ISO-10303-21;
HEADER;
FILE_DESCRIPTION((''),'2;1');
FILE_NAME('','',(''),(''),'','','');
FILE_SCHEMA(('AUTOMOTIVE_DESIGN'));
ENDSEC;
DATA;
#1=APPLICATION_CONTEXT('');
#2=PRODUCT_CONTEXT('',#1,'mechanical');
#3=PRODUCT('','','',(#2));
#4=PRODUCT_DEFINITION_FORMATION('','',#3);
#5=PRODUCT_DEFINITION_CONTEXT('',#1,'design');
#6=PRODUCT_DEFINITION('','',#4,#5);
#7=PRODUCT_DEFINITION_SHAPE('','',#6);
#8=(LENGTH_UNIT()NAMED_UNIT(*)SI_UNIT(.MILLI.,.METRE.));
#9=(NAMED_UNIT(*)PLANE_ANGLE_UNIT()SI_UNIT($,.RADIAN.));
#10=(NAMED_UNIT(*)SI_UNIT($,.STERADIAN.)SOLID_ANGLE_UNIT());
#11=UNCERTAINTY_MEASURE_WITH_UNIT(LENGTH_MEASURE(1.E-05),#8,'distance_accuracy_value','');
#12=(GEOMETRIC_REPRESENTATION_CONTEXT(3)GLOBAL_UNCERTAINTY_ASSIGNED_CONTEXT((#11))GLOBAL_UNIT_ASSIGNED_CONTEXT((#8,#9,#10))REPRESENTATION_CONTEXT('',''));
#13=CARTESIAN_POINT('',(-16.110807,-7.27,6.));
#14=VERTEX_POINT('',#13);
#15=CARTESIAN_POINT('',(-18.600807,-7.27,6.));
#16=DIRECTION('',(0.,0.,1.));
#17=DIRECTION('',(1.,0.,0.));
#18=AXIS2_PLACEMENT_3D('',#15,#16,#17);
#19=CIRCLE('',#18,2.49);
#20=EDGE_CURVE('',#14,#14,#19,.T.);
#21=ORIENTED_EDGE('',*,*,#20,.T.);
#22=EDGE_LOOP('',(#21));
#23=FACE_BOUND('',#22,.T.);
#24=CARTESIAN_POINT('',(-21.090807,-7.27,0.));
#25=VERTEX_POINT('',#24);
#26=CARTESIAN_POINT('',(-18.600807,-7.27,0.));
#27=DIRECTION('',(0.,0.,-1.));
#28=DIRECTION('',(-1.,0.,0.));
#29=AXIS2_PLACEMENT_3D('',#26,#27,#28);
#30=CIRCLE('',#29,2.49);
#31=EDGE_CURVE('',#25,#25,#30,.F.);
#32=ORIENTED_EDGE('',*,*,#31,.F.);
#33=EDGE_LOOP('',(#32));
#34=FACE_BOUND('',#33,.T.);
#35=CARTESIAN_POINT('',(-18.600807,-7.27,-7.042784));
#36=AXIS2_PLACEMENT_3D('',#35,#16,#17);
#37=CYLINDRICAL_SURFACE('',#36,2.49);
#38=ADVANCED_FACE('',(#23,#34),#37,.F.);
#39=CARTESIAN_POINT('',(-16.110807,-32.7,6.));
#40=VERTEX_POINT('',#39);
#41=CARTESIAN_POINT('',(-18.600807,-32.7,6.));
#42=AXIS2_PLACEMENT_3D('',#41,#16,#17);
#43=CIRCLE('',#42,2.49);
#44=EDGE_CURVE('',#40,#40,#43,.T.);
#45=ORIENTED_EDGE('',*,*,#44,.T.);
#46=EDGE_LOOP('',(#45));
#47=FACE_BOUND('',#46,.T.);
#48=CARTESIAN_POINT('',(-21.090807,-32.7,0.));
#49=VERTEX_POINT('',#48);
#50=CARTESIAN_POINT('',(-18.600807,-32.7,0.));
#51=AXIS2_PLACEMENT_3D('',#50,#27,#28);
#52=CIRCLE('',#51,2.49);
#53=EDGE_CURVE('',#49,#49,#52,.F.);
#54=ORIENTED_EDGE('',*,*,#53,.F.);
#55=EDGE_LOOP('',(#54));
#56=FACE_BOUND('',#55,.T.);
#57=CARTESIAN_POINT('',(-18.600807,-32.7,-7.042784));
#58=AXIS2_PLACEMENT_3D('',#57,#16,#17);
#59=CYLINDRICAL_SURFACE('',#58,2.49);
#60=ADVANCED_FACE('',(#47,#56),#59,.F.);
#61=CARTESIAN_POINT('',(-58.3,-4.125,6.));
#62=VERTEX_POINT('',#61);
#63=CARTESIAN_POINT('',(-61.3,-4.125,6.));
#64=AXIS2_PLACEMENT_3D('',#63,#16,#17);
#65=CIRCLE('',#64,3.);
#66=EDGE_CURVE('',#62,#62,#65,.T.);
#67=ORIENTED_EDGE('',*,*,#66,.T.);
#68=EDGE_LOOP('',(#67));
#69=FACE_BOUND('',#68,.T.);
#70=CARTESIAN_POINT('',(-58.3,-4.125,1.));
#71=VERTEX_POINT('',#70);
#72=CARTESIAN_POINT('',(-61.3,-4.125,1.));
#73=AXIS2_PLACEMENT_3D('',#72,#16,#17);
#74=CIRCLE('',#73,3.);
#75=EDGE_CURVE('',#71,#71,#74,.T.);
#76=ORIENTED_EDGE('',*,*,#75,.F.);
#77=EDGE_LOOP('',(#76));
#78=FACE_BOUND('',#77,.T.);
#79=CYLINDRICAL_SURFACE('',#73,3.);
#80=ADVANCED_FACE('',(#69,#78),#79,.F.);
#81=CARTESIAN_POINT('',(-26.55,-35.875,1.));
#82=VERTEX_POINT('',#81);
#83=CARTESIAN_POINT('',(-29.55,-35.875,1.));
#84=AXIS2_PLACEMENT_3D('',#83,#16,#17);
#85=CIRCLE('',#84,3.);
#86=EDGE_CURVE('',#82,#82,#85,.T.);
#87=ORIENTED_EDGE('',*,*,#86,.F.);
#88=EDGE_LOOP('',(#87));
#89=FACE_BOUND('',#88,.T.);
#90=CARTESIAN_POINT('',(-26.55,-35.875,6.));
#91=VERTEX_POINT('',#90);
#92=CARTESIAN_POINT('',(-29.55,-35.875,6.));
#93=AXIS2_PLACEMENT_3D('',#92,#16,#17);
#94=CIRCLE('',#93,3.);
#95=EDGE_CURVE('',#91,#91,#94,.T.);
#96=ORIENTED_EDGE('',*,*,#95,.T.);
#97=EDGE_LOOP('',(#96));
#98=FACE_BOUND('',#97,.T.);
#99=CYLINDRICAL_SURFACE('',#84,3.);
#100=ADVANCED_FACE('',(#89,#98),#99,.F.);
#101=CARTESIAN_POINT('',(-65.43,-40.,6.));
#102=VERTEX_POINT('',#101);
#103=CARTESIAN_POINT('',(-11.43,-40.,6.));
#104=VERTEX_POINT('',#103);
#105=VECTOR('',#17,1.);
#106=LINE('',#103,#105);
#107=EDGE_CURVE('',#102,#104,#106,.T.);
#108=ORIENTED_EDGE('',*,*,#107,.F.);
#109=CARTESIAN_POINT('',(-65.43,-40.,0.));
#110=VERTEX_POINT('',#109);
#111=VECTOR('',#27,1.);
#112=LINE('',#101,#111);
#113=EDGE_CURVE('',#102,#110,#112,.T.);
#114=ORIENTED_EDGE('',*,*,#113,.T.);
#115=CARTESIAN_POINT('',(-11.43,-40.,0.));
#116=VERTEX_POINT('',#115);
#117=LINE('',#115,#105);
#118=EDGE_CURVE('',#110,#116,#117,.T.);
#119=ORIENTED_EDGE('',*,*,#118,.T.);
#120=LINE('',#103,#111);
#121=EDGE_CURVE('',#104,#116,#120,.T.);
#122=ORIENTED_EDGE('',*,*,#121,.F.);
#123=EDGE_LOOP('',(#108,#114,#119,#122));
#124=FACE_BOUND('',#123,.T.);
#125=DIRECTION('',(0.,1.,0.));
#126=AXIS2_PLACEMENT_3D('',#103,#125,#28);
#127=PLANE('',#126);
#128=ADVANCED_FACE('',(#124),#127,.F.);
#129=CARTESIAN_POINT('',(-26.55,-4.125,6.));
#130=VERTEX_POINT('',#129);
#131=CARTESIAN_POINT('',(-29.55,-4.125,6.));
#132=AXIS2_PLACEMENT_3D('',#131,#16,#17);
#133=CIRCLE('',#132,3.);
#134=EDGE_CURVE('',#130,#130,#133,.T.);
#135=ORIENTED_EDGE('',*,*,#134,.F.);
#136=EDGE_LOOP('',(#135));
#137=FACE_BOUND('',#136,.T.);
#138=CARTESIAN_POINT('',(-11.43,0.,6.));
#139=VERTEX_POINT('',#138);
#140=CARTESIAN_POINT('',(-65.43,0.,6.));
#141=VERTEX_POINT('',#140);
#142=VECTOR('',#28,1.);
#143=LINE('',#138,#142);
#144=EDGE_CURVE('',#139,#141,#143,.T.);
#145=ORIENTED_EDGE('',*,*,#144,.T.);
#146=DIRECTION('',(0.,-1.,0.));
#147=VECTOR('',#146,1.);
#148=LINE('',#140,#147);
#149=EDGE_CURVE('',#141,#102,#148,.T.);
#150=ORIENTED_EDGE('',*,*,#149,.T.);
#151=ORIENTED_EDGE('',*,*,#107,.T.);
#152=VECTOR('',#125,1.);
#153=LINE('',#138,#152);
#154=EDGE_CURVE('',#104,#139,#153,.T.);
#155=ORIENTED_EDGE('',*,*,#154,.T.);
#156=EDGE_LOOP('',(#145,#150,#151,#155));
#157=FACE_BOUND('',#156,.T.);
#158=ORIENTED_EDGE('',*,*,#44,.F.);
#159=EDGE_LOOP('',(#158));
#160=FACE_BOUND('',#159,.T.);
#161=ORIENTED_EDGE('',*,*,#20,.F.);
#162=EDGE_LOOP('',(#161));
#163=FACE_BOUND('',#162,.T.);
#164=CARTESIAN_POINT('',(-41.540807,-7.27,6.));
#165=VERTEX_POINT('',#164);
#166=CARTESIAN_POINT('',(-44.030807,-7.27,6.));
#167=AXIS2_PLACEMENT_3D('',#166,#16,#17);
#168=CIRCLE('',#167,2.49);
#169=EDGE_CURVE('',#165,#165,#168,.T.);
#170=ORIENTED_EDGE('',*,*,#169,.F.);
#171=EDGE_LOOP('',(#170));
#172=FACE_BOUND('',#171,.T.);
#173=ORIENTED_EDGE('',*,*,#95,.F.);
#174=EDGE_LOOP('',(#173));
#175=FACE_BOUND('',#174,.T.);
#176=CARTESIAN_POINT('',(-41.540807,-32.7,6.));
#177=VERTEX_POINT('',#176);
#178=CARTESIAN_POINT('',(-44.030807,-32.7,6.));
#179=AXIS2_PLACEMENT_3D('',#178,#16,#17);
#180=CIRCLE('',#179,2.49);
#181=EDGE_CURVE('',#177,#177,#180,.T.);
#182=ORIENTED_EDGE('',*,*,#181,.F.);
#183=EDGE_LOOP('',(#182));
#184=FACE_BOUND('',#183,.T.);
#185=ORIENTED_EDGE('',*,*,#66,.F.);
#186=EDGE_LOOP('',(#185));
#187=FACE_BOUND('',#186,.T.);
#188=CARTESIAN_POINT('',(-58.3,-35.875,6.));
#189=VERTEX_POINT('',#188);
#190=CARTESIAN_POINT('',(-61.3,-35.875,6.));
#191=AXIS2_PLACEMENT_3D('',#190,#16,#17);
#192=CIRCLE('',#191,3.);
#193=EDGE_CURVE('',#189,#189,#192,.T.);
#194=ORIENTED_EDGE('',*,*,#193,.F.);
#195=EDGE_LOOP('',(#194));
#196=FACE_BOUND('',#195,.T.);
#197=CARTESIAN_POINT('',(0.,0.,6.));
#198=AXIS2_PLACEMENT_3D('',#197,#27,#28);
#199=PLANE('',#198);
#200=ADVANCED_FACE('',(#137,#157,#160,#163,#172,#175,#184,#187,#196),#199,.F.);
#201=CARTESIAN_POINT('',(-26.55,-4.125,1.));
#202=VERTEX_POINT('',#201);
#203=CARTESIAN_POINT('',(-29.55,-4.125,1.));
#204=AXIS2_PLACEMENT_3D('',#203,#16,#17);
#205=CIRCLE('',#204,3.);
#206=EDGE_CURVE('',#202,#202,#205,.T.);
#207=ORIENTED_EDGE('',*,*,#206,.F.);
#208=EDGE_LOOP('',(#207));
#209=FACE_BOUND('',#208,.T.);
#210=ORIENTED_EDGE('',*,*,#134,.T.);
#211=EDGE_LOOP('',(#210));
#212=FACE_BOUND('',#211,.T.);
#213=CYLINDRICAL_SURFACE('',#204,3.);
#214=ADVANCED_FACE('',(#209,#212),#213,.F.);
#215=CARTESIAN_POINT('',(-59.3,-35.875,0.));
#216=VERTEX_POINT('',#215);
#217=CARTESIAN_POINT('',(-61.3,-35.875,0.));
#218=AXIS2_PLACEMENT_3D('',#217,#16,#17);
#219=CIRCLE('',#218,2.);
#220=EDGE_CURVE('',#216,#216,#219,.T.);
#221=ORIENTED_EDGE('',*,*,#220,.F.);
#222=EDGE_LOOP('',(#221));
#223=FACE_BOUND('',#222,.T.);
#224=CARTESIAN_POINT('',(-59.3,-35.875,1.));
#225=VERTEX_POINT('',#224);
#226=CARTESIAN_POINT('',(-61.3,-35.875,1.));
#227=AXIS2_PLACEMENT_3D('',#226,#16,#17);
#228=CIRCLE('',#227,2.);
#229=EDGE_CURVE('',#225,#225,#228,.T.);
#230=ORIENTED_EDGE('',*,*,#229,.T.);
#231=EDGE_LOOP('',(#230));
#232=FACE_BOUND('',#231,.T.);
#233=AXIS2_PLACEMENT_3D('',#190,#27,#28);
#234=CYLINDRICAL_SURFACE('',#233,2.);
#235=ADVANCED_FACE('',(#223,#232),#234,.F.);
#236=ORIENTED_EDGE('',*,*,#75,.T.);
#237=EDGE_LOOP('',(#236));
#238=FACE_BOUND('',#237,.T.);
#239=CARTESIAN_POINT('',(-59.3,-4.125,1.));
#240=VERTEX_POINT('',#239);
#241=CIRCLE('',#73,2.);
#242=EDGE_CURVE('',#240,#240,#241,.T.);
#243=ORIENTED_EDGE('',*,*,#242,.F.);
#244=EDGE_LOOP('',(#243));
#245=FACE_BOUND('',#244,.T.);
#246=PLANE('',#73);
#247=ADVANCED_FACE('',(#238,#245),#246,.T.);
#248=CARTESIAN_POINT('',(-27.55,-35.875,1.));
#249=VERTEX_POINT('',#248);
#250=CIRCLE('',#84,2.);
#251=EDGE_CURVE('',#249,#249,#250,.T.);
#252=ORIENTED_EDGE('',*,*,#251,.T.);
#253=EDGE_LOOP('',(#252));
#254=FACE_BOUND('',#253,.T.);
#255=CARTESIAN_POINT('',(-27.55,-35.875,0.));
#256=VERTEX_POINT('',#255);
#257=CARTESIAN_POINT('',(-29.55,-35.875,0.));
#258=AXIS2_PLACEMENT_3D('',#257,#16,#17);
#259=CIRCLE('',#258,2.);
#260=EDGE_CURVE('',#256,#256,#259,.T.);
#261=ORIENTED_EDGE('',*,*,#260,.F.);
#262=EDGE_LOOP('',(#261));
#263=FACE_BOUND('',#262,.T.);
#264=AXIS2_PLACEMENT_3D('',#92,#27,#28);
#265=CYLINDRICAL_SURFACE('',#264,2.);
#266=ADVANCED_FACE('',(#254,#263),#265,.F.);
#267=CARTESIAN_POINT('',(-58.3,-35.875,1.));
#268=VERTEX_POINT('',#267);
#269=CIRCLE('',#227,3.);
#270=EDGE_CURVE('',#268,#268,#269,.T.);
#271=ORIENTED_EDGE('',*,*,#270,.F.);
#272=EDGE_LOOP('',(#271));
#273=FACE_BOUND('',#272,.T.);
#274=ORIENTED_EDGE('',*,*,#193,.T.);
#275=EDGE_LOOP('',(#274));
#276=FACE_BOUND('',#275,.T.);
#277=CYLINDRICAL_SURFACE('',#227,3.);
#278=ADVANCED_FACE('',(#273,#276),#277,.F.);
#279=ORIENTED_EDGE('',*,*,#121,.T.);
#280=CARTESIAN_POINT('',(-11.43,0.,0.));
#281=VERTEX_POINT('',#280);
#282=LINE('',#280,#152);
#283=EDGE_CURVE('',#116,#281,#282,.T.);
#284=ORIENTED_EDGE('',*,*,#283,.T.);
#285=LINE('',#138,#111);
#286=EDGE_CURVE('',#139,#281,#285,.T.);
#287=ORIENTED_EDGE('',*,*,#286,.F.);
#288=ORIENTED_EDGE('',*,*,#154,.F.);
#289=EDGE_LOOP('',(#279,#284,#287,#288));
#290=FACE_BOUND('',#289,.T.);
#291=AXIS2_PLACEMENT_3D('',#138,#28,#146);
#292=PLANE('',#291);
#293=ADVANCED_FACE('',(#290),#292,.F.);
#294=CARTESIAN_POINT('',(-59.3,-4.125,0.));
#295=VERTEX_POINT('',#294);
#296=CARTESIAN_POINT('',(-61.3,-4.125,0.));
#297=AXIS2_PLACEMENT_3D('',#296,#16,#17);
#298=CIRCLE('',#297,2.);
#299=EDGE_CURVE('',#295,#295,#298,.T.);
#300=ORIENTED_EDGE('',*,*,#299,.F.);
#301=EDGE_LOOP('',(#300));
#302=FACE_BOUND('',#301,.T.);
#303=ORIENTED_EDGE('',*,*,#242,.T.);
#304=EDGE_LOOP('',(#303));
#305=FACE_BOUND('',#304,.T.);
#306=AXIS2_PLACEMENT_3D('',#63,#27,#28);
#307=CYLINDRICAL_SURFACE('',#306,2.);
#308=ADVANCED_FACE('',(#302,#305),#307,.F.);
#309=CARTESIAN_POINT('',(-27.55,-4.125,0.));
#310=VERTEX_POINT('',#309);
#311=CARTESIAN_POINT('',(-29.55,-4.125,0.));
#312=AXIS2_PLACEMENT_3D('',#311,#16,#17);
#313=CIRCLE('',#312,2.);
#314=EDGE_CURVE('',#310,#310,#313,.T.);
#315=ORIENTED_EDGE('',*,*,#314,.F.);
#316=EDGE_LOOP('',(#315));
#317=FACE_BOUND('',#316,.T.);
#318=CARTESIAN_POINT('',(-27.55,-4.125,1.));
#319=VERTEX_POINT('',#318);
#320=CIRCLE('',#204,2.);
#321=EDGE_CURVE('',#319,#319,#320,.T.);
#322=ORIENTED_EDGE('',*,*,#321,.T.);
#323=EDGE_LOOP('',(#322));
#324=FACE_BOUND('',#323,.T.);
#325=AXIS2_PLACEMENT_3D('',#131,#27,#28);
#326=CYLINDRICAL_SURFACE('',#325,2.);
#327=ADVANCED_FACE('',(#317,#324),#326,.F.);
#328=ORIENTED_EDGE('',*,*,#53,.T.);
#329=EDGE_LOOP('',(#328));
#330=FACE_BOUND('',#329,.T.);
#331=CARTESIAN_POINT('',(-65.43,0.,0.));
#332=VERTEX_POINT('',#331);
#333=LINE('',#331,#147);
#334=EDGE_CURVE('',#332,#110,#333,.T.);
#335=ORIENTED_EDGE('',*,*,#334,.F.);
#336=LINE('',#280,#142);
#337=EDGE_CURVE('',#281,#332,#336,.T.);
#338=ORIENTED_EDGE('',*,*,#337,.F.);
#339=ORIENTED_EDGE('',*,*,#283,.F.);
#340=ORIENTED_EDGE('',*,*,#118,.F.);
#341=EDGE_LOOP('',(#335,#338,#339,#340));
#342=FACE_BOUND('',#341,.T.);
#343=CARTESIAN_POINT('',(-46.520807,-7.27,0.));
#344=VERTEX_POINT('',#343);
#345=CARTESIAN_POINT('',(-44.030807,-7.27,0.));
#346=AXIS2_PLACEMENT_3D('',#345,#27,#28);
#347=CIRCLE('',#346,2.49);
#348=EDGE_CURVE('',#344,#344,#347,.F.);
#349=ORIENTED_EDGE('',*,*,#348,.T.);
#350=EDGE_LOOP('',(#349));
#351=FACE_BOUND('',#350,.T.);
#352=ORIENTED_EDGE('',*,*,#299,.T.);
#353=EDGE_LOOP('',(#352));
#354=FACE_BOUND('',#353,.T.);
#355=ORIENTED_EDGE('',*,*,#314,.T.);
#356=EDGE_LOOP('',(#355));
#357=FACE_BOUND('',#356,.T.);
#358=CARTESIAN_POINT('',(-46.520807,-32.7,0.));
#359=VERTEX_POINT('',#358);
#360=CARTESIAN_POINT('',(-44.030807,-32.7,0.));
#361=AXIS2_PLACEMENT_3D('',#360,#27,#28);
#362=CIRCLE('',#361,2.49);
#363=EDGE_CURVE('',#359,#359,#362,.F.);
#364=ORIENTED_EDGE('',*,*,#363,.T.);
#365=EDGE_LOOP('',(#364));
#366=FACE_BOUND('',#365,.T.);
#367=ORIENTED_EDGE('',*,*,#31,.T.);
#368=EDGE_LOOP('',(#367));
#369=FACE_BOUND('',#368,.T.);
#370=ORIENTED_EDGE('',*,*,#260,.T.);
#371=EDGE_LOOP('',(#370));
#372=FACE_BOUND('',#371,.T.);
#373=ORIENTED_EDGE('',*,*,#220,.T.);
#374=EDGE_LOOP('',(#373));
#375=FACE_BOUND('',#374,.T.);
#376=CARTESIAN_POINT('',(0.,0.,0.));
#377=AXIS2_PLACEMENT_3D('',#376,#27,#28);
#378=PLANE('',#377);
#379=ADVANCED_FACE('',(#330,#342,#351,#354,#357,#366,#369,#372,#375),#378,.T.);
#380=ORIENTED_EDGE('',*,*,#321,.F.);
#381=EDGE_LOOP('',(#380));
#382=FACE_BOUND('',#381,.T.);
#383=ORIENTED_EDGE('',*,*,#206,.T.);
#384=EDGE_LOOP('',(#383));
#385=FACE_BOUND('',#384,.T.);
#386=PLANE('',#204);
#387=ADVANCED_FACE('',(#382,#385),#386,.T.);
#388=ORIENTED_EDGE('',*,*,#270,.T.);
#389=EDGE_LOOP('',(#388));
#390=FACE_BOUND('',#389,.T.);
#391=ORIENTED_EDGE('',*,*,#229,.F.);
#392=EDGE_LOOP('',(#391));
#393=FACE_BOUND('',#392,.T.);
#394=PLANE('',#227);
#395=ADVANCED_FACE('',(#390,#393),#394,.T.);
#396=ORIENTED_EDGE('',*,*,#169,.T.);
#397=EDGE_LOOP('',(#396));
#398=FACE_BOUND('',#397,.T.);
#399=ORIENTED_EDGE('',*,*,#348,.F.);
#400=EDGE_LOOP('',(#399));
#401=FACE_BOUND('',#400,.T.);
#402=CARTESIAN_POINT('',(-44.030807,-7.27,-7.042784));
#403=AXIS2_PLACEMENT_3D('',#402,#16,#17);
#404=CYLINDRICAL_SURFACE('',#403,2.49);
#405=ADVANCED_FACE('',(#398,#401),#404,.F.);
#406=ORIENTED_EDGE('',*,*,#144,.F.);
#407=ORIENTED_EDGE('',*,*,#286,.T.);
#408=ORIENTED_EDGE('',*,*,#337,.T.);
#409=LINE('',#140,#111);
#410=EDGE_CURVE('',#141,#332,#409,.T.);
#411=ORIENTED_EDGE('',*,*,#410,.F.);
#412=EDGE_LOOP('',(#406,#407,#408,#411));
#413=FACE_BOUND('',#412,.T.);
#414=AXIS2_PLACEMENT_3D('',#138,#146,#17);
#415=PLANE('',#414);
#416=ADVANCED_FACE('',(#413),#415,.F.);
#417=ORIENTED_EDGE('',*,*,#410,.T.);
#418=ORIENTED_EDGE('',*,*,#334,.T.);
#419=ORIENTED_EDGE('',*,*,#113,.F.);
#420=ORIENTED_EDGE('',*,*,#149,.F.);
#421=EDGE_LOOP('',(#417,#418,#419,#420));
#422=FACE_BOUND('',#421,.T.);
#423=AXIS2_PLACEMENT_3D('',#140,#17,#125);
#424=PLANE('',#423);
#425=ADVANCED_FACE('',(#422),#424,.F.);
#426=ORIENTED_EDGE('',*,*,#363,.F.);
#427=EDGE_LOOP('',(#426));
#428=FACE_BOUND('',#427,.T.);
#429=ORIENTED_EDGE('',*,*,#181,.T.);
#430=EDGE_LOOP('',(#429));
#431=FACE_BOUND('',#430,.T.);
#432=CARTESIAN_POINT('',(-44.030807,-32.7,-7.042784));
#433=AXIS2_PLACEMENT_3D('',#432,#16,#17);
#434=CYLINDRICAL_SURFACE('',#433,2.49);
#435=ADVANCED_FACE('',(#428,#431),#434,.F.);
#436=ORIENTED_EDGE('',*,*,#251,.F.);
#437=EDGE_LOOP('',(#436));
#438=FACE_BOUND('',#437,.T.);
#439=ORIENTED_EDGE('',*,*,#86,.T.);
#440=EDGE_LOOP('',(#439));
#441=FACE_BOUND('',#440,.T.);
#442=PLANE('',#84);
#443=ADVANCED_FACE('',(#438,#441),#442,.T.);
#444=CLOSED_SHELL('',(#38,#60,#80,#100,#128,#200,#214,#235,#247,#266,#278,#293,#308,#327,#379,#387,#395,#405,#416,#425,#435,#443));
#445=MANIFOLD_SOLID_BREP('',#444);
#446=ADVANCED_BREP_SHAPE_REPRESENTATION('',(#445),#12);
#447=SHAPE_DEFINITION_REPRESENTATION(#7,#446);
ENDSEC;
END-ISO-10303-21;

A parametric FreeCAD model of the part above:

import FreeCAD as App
import Part
import Sketcher

V = App.Vector


def add_polygon(sketch, points):
    """Adds a closed chain of lines whose ends are joined by coincident constraints."""
    first, n = sketch.GeometryCount, len(points)
    for a, b in zip(points, points[1:] + points[:1]):
        sketch.addGeometry(Part.LineSegment(App.Vector(*a, 0), App.Vector(*b, 0)), False)
    for i in range(n):
        sketch.addConstraint(Sketcher.Constraint("Coincident", first + i, 2, first + (i + 1) % n, 1))

doc = App.newDocument("Part")
body = doc.addObject("PartDesign::Body", "Body")

sketch1 = body.newObject("Sketcher::SketchObject", "Sketch")
sketch1.AttachmentSupport = (doc.getObject("XY_Plane"), [""])
sketch1.MapMode = "FlatFace"
add_polygon(sketch1, [(-65, 0), (-65, -40), (-11, -40), (-11, 0)])
sketch1.addConstraint([
    Sketcher.Constraint("Vertical", 0),
    Sketcher.Constraint("Horizontal", 1),
    Sketcher.Constraint("Vertical", 2),
    Sketcher.Constraint("Horizontal", 3),
    Sketcher.Constraint("PointOnObject", 2, 2, -1),
    Sketcher.Constraint("DistanceX", 1, 1, 1, 2, 54.0),
    Sketcher.Constraint("DistanceY", 0, 2, 0, 1, 40.0),
    Sketcher.Constraint("DistanceX", 0, 2, -1, 1, 65.43),
])
pad1 = body.newObject("PartDesign::Pad", "Pad")
pad1.Profile = sketch1
pad1.Length = 6

sketch2 = body.newObject("Sketcher::SketchObject", "Sketch001")
sketch2.AttachmentSupport = (doc.getObject("XY_Plane"), [""])
sketch2.MapMode = "FlatFace"
sketch2.addGeometry([
    Part.Circle(V(-61.3, -35.9, 0), V(0, 0, 1), 2),
    Part.Circle(V(-29.6, -35.9, 0), V(0, 0, 1), 2),
    Part.Circle(V(-29.6, -4.1, 0), V(0, 0, 1), 2),
    Part.Circle(V(-61.3, -4.1, 0), V(0, 0, 1), 2),
], False)
sketch2.addConstraint([
    Sketcher.Constraint("Equal", 0, 1),
    Sketcher.Constraint("Equal", 1, 2),
    Sketcher.Constraint("Equal", 2, 3),
    Sketcher.Constraint("Horizontal", 0, 3, 1, 3),
    Sketcher.Constraint("Horizontal", 2, 3, 3, 3),
    Sketcher.Constraint("Vertical", 1, 3, 2, 3),
    Sketcher.Constraint("Vertical", 0, 3, 3, 3),
    Sketcher.Constraint("Diameter", 0, 4.0),
    Sketcher.Constraint("DistanceX", 0, 3, -1, 1, 61.3),
    Sketcher.Constraint("DistanceX", 1, 3, -1, 1, 29.55),
    Sketcher.Constraint("DistanceY", 1, 3, 2, 3, 31.75),
    Sketcher.Constraint("DistanceY", 0, 3, -1, 1, 35.875),
])
pocket1 = body.newObject("PartDesign::Pocket", "Pocket")
pocket1.Profile = sketch2
pocket1.Type = "ThroughAll"
pocket1.Reversed = True

sketch3 = body.newObject("Sketcher::SketchObject", "Sketch002")
sketch3.AttachmentSupport = (doc.getObject("XY_Plane"), [""])
sketch3.MapMode = "FlatFace"
sketch3.AttachmentOffset = App.Placement(V(0, 0, 6), App.Rotation())
sketch3.addGeometry([
    Part.Circle(V(-61.3, -4.1, 0), V(0, 0, 1), 3),
    Part.Circle(V(-29.6, -4.1, 0), V(0, 0, 1), 3),
    Part.Circle(V(-29.6, -35.9, 0), V(0, 0, 1), 3),
    Part.Circle(V(-61.3, -35.9, 0), V(0, 0, 1), 3),
], False)
sketch3.addConstraint([
    Sketcher.Constraint("Equal", 0, 1),
    Sketcher.Constraint("Equal", 1, 2),
    Sketcher.Constraint("Equal", 2, 3),
    Sketcher.Constraint("Horizontal", 0, 3, 1, 3),
    Sketcher.Constraint("Horizontal", 2, 3, 3, 3),
    Sketcher.Constraint("Vertical", 1, 3, 2, 3),
    Sketcher.Constraint("Vertical", 0, 3, 3, 3),
    Sketcher.Constraint("Diameter", 0, 6.0),
    Sketcher.Constraint("DistanceX", 0, 3, -1, 1, 61.3),
    Sketcher.Constraint("DistanceX", 1, 3, -1, 1, 29.55),
    Sketcher.Constraint("DistanceY", 2, 3, 1, 3, 31.75),
    Sketcher.Constraint("DistanceY", 0, 3, -1, 1, 4.125),
])
pocket2 = body.newObject("PartDesign::Pocket", "Pocket001")
pocket2.Profile = sketch3
pocket2.Length = 5

sketch4 = body.newObject("Sketcher::SketchObject", "Sketch003")
sketch4.AttachmentSupport = (doc.getObject("XY_Plane"), [""])
sketch4.MapMode = "FlatFace"
sketch4.AttachmentOffset = App.Placement(V(0, 0, 6), App.Rotation())
sketch4.addGeometry([
    Part.Circle(V(-44, -7.3, 0), V(0, 0, 1), 2.5),
    Part.Circle(V(-18.6, -7.3, 0), V(0, 0, 1), 2.5),
    Part.Circle(V(-44, -32.7, 0), V(0, 0, 1), 2.5),
    Part.Circle(V(-18.6, -32.7, 0), V(0, 0, 1), 2.5),
], False)
sketch4.addConstraint([
    Sketcher.Constraint("Equal", 0, 1),
    Sketcher.Constraint("Equal", 1, 2),
    Sketcher.Constraint("Equal", 2, 3),
    Sketcher.Constraint("Horizontal", 0, 3, 1, 3),
    Sketcher.Constraint("Horizontal", 2, 3, 3, 3),
    Sketcher.Constraint("Vertical", 0, 3, 2, 3),
    Sketcher.Constraint("Vertical", 1, 3, 3, 3),
    Sketcher.Constraint("Diameter", 0, 4.98),
    Sketcher.Constraint("DistanceY", 2, 3, -1, 1, 32.7),
    Sketcher.Constraint("DistanceY", 0, 3, -1, 1, 7.27),
    Sketcher.Constraint("DistanceX", 0, 3, 1, 3, 25.43),
    Sketcher.Constraint("DistanceX", 0, 3, -1, 1, 44.030807),
])
pocket3 = body.newObject("PartDesign::Pocket", "Pocket002")
pocket3.Profile = sketch4
pocket3.Length = 6

doc.recompute()
